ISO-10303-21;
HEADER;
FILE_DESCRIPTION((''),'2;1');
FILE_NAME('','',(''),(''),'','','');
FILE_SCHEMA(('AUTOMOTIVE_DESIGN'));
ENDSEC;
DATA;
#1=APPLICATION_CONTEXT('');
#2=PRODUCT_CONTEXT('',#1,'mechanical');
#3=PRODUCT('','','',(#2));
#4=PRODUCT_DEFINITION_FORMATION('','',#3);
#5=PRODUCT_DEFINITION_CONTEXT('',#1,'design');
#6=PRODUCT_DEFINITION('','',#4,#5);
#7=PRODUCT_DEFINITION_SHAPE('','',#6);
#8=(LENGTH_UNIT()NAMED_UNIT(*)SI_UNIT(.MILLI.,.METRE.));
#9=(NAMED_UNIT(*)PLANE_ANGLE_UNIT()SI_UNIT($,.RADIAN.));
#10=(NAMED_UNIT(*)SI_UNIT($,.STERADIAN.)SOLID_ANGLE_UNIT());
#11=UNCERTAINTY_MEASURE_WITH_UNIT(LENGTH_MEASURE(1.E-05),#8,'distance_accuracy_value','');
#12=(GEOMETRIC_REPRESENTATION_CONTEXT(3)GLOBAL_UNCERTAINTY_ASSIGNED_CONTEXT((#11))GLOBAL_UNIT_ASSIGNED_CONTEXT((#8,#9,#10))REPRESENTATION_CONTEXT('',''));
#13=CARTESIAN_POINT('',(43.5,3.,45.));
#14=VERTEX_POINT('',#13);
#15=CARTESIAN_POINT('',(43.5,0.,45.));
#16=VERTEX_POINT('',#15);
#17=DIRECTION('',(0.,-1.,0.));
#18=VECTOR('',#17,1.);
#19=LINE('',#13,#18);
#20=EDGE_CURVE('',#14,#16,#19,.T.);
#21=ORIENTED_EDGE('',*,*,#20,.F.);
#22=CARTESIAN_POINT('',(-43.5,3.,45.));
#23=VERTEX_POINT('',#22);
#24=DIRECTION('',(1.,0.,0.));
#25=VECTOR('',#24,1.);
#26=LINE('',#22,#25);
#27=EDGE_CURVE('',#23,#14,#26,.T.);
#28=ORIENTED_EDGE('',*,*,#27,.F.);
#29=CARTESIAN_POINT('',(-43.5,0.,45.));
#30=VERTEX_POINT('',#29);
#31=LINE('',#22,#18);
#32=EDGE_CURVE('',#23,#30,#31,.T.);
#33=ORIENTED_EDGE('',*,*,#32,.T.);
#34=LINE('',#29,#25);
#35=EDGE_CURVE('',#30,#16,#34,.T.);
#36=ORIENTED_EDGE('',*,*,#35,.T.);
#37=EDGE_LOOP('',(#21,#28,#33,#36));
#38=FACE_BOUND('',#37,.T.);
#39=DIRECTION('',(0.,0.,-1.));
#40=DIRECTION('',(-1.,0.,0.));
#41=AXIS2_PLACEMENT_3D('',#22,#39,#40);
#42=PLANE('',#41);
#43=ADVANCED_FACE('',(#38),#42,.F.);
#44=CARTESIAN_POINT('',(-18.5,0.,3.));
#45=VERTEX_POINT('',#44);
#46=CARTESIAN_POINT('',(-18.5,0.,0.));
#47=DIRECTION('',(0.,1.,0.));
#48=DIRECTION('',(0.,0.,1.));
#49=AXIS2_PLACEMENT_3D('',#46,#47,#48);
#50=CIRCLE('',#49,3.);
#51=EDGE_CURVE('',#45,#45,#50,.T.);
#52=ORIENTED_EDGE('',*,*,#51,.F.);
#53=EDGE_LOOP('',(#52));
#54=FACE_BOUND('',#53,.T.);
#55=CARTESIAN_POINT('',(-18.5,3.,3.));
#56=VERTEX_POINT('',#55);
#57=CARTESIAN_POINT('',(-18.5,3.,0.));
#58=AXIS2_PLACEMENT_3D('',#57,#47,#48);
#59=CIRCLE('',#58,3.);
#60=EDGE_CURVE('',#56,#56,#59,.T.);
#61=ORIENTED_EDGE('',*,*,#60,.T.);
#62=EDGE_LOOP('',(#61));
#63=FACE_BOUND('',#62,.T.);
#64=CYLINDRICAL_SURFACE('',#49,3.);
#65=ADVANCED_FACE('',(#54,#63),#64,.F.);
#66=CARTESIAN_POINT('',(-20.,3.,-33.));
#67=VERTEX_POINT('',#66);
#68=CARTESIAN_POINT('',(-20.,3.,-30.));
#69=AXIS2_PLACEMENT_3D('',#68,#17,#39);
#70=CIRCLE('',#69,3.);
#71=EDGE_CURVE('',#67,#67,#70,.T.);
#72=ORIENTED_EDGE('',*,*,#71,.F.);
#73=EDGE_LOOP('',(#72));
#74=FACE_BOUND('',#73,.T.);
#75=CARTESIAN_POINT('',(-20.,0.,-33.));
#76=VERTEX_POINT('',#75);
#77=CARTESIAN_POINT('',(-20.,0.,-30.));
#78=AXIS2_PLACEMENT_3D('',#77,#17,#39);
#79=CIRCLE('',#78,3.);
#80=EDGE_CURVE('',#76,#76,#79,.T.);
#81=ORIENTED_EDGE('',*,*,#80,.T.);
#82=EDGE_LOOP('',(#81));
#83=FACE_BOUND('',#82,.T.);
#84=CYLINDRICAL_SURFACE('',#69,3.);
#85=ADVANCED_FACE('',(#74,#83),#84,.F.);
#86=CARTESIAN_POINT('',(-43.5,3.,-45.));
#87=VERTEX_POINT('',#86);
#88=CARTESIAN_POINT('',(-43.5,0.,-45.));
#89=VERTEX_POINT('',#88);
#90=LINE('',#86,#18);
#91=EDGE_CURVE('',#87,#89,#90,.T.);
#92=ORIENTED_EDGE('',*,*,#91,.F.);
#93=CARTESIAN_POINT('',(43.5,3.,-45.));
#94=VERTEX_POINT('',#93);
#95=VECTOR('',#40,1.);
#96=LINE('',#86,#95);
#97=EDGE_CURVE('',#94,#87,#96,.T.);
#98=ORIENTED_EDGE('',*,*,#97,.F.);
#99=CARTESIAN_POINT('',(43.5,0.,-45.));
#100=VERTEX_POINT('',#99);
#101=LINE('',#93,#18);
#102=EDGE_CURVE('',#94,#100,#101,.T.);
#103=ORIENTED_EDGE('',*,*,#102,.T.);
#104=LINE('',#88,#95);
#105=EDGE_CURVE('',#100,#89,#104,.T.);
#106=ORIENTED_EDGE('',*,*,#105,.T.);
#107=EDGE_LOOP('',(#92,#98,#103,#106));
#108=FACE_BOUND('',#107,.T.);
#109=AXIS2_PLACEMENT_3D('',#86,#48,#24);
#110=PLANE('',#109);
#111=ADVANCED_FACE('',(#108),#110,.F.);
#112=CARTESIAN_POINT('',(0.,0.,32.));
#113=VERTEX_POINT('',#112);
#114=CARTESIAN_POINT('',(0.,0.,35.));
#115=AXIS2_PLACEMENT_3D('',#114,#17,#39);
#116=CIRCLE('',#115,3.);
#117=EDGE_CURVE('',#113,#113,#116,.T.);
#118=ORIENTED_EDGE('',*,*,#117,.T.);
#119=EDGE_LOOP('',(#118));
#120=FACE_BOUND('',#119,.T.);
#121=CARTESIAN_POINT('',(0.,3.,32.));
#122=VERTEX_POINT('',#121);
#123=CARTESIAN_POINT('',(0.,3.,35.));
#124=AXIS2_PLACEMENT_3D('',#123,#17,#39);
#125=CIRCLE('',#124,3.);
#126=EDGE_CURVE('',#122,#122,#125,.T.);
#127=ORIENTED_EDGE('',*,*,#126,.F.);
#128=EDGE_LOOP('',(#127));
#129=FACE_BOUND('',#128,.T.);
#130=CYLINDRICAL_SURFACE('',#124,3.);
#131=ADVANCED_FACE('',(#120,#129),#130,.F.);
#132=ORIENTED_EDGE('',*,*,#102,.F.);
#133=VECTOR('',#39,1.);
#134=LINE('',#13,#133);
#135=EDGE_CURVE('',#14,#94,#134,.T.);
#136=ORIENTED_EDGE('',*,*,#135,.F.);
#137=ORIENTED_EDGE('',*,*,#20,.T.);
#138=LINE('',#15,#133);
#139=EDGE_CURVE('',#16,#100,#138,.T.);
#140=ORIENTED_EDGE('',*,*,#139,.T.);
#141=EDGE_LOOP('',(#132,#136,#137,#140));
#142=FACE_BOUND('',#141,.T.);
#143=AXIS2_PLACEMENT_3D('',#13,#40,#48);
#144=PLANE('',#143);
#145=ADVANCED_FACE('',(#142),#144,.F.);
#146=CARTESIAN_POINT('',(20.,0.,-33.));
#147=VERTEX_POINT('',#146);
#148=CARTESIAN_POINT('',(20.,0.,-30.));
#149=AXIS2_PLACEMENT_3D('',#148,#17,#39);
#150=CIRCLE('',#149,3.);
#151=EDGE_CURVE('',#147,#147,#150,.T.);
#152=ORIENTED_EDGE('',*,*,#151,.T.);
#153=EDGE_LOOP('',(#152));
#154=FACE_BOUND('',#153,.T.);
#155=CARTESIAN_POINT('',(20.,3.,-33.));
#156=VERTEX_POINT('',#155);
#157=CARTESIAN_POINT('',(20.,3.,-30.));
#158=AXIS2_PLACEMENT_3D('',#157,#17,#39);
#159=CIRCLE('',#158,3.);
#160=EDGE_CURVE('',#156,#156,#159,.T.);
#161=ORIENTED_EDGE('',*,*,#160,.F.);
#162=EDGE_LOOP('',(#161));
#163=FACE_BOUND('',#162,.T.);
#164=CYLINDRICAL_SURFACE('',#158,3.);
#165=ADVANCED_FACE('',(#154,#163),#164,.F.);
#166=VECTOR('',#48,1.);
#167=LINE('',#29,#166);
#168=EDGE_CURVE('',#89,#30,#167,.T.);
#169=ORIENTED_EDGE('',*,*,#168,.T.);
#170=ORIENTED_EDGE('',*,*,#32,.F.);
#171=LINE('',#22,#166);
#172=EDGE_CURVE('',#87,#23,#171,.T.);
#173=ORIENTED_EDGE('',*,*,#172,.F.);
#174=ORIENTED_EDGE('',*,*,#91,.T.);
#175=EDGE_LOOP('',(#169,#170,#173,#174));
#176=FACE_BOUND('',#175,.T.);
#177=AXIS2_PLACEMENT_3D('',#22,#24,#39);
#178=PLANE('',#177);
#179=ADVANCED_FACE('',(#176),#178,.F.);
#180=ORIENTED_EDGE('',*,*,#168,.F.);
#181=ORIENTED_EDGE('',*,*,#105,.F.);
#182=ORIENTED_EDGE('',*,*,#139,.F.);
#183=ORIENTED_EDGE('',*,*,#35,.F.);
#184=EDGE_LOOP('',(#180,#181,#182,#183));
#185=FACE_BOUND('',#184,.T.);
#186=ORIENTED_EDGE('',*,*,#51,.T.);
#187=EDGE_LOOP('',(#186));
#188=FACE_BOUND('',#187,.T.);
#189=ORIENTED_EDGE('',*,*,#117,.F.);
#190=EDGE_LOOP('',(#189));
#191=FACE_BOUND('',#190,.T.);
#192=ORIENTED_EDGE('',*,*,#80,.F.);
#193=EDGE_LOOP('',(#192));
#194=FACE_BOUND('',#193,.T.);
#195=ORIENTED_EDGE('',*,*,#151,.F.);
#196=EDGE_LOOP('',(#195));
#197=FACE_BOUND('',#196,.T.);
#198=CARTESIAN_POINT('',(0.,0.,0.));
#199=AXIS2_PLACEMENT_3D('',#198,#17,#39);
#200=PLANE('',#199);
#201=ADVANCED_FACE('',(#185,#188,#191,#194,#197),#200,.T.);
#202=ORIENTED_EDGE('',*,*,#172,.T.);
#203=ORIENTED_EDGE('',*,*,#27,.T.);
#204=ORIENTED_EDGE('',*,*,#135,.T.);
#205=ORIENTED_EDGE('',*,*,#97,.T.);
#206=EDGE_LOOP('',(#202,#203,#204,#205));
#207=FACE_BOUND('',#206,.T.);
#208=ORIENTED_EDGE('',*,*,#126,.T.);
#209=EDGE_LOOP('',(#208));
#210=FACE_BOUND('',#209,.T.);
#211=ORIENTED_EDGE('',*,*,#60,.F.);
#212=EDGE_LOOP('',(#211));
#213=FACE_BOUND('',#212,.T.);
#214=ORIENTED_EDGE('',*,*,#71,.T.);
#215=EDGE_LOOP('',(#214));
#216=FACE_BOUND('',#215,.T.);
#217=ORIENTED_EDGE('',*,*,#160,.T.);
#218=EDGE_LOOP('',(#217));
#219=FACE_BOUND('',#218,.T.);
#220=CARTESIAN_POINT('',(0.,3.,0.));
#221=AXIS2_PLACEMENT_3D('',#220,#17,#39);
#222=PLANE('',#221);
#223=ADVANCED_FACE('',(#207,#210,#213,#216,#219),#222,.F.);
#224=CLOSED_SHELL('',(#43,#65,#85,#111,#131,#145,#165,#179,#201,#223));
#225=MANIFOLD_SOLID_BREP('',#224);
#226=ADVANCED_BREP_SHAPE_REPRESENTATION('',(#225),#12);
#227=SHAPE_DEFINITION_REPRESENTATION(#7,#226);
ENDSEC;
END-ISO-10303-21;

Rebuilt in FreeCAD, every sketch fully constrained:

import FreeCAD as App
import Part
import Sketcher
Q = App.Units.Quantity

doc = App.newDocument("Part")
params = doc.addObject("Spreadsheet::Sheet", "Params")
for row, (alias, value) in enumerate([
    ("sketch1_width", "87 mm"),
    ("sketch1_height", "90 mm"),
    ("pad1_length", "3 mm"),
    ("sketch2_diameter", "6 mm"),
    ("sketch3_diameter", "6 mm"),
], start=1):
    params.set(f"A{row}", alias)
    params.set(f"B{row}", "=" + value)
    params.setAlias(f"B{row}", alias)

body = doc.addObject("PartDesign::Body", "Body")

# Sketch on XZ plane
sketch1 = doc.addObject("Sketcher::SketchObject", "Sketch")
body.addObject(sketch1)
sketch1.AttachmentSupport = (doc.XZ_Plane, [""])
sketch1.MapMode = "FlatFace"
sketch1.addGeometry([
    Part.LineSegment(App.Vector(-44, -45, 0), App.Vector(-44, 45, 0)),
    Part.LineSegment(App.Vector(-44, 45, 0), App.Vector(44, 45, 0)),
    Part.LineSegment(App.Vector(44, 45, 0), App.Vector(44, -45, 0)),
    Part.LineSegment(App.Vector(44, -45, 0), App.Vector(-44, -45, 0)),
], False)
sketch1.addConstraint([
    Sketcher.Constraint("Coincident", 0, 2, 1, 1),
    Sketcher.Constraint("Coincident", 1, 2, 2, 1),
    Sketcher.Constraint("Coincident", 2, 2, 3, 1),
    Sketcher.Constraint("Coincident", 3, 2, 0, 1),
    Sketcher.Constraint("Vertical", 0),
    Sketcher.Constraint("Horizontal", 1),
    Sketcher.Constraint("Vertical", 2),
    Sketcher.Constraint("Horizontal", 3),
    Sketcher.Constraint("Symmetric", 0, 2, 2, 2, -1, 1),
    Sketcher.Constraint("DistanceX", 1, 1, 1, 2, Q("87 mm")),
    Sketcher.Constraint("DistanceY", 0, 1, 0, 2, Q("90 mm")),
])
sketch1.setExpression("Constraints[9]", "Params.sketch1_width")
sketch1.setExpression("Constraints[10]", "Params.sketch1_height")
pad1 = doc.addObject("PartDesign::Pad", "Pad")
body.addObject(pad1)
pad1.Profile = sketch1
pad1.setExpression("Length", "Params.pad1_length")
pad1.Reversed = True

# Sketch on XZ plane
sketch2 = doc.addObject("Sketcher::SketchObject", "Sketch001")
body.addObject(sketch2)
sketch2.AttachmentSupport = (doc.XZ_Plane, [""])
sketch2.MapMode = "FlatFace"
sketch2.AttachmentOffset = App.Placement(App.Vector(0, 0, -3), App.Rotation())
sketch2.addGeometry(Part.Circle(App.Vector(-18.5, 0, 0), App.Vector(0, 0, 1), 3), False)
sketch2.addConstraint([
    Sketcher.Constraint("PointOnObject", 0, 3, -1),
    Sketcher.Constraint("Diameter", 0, Q("6 mm")),
    Sketcher.Constraint("DistanceX", 0, 3, -1, 1, Q("18.5 mm")),
])
sketch2.setExpression("Constraints[1]", "Params.sketch2_diameter")
pocket1 = doc.addObject("PartDesign::Pocket", "Pocket")
body.addObject(pocket1)
pocket1.Profile = sketch2
pocket1.Type = "ThroughAll"
pocket1.Reversed = True

# Sketch on XZ plane
sketch3 = doc.addObject("Sketcher::SketchObject", "Sketch002")
body.addObject(sketch3)
sketch3.AttachmentSupport = (doc.XZ_Plane, [""])
sketch3.MapMode = "FlatFace"
sketch3.addGeometry([
    Part.Circle(App.Vector(0, 35, 0), App.Vector(0, 0, 1), 3),
    Part.Circle(App.Vector(-20, -30, 0), App.Vector(0, 0, 1), 3),
    Part.Circle(App.Vector(20, -30, 0), App.Vector(0, 0, 1), 3),
], False)
sketch3.addConstraint([
    Sketcher.Constraint("Equal", 0, 1),
    Sketcher.Constraint("Equal", 1, 2),
    Sketcher.Constraint("Symmetric", 1, 3, 2, 3, -2),
    Sketcher.Constraint("PointOnObject", 0, 3, -2),
    Sketcher.Constraint("Diameter", 0, Q("6 mm")),
    Sketcher.Constraint("DistanceY", -1, 1, 0, 3, Q("35 mm")),
    Sketcher.Constraint("DistanceX", 1, 3, -1, 1, Q("20 mm")),
    Sketcher.Constraint("DistanceY", 1, 3, -1, 1, Q("30 mm")),
])
sketch3.setExpression("Constraints[4]", "Params.sketch3_diameter")
pocket2 = doc.addObject("PartDesign::Pocket", "Pocket001")
body.addObject(pocket2)
pocket2.Profile = sketch3
pocket2.Type = "ThroughAll"

doc.recompute()
